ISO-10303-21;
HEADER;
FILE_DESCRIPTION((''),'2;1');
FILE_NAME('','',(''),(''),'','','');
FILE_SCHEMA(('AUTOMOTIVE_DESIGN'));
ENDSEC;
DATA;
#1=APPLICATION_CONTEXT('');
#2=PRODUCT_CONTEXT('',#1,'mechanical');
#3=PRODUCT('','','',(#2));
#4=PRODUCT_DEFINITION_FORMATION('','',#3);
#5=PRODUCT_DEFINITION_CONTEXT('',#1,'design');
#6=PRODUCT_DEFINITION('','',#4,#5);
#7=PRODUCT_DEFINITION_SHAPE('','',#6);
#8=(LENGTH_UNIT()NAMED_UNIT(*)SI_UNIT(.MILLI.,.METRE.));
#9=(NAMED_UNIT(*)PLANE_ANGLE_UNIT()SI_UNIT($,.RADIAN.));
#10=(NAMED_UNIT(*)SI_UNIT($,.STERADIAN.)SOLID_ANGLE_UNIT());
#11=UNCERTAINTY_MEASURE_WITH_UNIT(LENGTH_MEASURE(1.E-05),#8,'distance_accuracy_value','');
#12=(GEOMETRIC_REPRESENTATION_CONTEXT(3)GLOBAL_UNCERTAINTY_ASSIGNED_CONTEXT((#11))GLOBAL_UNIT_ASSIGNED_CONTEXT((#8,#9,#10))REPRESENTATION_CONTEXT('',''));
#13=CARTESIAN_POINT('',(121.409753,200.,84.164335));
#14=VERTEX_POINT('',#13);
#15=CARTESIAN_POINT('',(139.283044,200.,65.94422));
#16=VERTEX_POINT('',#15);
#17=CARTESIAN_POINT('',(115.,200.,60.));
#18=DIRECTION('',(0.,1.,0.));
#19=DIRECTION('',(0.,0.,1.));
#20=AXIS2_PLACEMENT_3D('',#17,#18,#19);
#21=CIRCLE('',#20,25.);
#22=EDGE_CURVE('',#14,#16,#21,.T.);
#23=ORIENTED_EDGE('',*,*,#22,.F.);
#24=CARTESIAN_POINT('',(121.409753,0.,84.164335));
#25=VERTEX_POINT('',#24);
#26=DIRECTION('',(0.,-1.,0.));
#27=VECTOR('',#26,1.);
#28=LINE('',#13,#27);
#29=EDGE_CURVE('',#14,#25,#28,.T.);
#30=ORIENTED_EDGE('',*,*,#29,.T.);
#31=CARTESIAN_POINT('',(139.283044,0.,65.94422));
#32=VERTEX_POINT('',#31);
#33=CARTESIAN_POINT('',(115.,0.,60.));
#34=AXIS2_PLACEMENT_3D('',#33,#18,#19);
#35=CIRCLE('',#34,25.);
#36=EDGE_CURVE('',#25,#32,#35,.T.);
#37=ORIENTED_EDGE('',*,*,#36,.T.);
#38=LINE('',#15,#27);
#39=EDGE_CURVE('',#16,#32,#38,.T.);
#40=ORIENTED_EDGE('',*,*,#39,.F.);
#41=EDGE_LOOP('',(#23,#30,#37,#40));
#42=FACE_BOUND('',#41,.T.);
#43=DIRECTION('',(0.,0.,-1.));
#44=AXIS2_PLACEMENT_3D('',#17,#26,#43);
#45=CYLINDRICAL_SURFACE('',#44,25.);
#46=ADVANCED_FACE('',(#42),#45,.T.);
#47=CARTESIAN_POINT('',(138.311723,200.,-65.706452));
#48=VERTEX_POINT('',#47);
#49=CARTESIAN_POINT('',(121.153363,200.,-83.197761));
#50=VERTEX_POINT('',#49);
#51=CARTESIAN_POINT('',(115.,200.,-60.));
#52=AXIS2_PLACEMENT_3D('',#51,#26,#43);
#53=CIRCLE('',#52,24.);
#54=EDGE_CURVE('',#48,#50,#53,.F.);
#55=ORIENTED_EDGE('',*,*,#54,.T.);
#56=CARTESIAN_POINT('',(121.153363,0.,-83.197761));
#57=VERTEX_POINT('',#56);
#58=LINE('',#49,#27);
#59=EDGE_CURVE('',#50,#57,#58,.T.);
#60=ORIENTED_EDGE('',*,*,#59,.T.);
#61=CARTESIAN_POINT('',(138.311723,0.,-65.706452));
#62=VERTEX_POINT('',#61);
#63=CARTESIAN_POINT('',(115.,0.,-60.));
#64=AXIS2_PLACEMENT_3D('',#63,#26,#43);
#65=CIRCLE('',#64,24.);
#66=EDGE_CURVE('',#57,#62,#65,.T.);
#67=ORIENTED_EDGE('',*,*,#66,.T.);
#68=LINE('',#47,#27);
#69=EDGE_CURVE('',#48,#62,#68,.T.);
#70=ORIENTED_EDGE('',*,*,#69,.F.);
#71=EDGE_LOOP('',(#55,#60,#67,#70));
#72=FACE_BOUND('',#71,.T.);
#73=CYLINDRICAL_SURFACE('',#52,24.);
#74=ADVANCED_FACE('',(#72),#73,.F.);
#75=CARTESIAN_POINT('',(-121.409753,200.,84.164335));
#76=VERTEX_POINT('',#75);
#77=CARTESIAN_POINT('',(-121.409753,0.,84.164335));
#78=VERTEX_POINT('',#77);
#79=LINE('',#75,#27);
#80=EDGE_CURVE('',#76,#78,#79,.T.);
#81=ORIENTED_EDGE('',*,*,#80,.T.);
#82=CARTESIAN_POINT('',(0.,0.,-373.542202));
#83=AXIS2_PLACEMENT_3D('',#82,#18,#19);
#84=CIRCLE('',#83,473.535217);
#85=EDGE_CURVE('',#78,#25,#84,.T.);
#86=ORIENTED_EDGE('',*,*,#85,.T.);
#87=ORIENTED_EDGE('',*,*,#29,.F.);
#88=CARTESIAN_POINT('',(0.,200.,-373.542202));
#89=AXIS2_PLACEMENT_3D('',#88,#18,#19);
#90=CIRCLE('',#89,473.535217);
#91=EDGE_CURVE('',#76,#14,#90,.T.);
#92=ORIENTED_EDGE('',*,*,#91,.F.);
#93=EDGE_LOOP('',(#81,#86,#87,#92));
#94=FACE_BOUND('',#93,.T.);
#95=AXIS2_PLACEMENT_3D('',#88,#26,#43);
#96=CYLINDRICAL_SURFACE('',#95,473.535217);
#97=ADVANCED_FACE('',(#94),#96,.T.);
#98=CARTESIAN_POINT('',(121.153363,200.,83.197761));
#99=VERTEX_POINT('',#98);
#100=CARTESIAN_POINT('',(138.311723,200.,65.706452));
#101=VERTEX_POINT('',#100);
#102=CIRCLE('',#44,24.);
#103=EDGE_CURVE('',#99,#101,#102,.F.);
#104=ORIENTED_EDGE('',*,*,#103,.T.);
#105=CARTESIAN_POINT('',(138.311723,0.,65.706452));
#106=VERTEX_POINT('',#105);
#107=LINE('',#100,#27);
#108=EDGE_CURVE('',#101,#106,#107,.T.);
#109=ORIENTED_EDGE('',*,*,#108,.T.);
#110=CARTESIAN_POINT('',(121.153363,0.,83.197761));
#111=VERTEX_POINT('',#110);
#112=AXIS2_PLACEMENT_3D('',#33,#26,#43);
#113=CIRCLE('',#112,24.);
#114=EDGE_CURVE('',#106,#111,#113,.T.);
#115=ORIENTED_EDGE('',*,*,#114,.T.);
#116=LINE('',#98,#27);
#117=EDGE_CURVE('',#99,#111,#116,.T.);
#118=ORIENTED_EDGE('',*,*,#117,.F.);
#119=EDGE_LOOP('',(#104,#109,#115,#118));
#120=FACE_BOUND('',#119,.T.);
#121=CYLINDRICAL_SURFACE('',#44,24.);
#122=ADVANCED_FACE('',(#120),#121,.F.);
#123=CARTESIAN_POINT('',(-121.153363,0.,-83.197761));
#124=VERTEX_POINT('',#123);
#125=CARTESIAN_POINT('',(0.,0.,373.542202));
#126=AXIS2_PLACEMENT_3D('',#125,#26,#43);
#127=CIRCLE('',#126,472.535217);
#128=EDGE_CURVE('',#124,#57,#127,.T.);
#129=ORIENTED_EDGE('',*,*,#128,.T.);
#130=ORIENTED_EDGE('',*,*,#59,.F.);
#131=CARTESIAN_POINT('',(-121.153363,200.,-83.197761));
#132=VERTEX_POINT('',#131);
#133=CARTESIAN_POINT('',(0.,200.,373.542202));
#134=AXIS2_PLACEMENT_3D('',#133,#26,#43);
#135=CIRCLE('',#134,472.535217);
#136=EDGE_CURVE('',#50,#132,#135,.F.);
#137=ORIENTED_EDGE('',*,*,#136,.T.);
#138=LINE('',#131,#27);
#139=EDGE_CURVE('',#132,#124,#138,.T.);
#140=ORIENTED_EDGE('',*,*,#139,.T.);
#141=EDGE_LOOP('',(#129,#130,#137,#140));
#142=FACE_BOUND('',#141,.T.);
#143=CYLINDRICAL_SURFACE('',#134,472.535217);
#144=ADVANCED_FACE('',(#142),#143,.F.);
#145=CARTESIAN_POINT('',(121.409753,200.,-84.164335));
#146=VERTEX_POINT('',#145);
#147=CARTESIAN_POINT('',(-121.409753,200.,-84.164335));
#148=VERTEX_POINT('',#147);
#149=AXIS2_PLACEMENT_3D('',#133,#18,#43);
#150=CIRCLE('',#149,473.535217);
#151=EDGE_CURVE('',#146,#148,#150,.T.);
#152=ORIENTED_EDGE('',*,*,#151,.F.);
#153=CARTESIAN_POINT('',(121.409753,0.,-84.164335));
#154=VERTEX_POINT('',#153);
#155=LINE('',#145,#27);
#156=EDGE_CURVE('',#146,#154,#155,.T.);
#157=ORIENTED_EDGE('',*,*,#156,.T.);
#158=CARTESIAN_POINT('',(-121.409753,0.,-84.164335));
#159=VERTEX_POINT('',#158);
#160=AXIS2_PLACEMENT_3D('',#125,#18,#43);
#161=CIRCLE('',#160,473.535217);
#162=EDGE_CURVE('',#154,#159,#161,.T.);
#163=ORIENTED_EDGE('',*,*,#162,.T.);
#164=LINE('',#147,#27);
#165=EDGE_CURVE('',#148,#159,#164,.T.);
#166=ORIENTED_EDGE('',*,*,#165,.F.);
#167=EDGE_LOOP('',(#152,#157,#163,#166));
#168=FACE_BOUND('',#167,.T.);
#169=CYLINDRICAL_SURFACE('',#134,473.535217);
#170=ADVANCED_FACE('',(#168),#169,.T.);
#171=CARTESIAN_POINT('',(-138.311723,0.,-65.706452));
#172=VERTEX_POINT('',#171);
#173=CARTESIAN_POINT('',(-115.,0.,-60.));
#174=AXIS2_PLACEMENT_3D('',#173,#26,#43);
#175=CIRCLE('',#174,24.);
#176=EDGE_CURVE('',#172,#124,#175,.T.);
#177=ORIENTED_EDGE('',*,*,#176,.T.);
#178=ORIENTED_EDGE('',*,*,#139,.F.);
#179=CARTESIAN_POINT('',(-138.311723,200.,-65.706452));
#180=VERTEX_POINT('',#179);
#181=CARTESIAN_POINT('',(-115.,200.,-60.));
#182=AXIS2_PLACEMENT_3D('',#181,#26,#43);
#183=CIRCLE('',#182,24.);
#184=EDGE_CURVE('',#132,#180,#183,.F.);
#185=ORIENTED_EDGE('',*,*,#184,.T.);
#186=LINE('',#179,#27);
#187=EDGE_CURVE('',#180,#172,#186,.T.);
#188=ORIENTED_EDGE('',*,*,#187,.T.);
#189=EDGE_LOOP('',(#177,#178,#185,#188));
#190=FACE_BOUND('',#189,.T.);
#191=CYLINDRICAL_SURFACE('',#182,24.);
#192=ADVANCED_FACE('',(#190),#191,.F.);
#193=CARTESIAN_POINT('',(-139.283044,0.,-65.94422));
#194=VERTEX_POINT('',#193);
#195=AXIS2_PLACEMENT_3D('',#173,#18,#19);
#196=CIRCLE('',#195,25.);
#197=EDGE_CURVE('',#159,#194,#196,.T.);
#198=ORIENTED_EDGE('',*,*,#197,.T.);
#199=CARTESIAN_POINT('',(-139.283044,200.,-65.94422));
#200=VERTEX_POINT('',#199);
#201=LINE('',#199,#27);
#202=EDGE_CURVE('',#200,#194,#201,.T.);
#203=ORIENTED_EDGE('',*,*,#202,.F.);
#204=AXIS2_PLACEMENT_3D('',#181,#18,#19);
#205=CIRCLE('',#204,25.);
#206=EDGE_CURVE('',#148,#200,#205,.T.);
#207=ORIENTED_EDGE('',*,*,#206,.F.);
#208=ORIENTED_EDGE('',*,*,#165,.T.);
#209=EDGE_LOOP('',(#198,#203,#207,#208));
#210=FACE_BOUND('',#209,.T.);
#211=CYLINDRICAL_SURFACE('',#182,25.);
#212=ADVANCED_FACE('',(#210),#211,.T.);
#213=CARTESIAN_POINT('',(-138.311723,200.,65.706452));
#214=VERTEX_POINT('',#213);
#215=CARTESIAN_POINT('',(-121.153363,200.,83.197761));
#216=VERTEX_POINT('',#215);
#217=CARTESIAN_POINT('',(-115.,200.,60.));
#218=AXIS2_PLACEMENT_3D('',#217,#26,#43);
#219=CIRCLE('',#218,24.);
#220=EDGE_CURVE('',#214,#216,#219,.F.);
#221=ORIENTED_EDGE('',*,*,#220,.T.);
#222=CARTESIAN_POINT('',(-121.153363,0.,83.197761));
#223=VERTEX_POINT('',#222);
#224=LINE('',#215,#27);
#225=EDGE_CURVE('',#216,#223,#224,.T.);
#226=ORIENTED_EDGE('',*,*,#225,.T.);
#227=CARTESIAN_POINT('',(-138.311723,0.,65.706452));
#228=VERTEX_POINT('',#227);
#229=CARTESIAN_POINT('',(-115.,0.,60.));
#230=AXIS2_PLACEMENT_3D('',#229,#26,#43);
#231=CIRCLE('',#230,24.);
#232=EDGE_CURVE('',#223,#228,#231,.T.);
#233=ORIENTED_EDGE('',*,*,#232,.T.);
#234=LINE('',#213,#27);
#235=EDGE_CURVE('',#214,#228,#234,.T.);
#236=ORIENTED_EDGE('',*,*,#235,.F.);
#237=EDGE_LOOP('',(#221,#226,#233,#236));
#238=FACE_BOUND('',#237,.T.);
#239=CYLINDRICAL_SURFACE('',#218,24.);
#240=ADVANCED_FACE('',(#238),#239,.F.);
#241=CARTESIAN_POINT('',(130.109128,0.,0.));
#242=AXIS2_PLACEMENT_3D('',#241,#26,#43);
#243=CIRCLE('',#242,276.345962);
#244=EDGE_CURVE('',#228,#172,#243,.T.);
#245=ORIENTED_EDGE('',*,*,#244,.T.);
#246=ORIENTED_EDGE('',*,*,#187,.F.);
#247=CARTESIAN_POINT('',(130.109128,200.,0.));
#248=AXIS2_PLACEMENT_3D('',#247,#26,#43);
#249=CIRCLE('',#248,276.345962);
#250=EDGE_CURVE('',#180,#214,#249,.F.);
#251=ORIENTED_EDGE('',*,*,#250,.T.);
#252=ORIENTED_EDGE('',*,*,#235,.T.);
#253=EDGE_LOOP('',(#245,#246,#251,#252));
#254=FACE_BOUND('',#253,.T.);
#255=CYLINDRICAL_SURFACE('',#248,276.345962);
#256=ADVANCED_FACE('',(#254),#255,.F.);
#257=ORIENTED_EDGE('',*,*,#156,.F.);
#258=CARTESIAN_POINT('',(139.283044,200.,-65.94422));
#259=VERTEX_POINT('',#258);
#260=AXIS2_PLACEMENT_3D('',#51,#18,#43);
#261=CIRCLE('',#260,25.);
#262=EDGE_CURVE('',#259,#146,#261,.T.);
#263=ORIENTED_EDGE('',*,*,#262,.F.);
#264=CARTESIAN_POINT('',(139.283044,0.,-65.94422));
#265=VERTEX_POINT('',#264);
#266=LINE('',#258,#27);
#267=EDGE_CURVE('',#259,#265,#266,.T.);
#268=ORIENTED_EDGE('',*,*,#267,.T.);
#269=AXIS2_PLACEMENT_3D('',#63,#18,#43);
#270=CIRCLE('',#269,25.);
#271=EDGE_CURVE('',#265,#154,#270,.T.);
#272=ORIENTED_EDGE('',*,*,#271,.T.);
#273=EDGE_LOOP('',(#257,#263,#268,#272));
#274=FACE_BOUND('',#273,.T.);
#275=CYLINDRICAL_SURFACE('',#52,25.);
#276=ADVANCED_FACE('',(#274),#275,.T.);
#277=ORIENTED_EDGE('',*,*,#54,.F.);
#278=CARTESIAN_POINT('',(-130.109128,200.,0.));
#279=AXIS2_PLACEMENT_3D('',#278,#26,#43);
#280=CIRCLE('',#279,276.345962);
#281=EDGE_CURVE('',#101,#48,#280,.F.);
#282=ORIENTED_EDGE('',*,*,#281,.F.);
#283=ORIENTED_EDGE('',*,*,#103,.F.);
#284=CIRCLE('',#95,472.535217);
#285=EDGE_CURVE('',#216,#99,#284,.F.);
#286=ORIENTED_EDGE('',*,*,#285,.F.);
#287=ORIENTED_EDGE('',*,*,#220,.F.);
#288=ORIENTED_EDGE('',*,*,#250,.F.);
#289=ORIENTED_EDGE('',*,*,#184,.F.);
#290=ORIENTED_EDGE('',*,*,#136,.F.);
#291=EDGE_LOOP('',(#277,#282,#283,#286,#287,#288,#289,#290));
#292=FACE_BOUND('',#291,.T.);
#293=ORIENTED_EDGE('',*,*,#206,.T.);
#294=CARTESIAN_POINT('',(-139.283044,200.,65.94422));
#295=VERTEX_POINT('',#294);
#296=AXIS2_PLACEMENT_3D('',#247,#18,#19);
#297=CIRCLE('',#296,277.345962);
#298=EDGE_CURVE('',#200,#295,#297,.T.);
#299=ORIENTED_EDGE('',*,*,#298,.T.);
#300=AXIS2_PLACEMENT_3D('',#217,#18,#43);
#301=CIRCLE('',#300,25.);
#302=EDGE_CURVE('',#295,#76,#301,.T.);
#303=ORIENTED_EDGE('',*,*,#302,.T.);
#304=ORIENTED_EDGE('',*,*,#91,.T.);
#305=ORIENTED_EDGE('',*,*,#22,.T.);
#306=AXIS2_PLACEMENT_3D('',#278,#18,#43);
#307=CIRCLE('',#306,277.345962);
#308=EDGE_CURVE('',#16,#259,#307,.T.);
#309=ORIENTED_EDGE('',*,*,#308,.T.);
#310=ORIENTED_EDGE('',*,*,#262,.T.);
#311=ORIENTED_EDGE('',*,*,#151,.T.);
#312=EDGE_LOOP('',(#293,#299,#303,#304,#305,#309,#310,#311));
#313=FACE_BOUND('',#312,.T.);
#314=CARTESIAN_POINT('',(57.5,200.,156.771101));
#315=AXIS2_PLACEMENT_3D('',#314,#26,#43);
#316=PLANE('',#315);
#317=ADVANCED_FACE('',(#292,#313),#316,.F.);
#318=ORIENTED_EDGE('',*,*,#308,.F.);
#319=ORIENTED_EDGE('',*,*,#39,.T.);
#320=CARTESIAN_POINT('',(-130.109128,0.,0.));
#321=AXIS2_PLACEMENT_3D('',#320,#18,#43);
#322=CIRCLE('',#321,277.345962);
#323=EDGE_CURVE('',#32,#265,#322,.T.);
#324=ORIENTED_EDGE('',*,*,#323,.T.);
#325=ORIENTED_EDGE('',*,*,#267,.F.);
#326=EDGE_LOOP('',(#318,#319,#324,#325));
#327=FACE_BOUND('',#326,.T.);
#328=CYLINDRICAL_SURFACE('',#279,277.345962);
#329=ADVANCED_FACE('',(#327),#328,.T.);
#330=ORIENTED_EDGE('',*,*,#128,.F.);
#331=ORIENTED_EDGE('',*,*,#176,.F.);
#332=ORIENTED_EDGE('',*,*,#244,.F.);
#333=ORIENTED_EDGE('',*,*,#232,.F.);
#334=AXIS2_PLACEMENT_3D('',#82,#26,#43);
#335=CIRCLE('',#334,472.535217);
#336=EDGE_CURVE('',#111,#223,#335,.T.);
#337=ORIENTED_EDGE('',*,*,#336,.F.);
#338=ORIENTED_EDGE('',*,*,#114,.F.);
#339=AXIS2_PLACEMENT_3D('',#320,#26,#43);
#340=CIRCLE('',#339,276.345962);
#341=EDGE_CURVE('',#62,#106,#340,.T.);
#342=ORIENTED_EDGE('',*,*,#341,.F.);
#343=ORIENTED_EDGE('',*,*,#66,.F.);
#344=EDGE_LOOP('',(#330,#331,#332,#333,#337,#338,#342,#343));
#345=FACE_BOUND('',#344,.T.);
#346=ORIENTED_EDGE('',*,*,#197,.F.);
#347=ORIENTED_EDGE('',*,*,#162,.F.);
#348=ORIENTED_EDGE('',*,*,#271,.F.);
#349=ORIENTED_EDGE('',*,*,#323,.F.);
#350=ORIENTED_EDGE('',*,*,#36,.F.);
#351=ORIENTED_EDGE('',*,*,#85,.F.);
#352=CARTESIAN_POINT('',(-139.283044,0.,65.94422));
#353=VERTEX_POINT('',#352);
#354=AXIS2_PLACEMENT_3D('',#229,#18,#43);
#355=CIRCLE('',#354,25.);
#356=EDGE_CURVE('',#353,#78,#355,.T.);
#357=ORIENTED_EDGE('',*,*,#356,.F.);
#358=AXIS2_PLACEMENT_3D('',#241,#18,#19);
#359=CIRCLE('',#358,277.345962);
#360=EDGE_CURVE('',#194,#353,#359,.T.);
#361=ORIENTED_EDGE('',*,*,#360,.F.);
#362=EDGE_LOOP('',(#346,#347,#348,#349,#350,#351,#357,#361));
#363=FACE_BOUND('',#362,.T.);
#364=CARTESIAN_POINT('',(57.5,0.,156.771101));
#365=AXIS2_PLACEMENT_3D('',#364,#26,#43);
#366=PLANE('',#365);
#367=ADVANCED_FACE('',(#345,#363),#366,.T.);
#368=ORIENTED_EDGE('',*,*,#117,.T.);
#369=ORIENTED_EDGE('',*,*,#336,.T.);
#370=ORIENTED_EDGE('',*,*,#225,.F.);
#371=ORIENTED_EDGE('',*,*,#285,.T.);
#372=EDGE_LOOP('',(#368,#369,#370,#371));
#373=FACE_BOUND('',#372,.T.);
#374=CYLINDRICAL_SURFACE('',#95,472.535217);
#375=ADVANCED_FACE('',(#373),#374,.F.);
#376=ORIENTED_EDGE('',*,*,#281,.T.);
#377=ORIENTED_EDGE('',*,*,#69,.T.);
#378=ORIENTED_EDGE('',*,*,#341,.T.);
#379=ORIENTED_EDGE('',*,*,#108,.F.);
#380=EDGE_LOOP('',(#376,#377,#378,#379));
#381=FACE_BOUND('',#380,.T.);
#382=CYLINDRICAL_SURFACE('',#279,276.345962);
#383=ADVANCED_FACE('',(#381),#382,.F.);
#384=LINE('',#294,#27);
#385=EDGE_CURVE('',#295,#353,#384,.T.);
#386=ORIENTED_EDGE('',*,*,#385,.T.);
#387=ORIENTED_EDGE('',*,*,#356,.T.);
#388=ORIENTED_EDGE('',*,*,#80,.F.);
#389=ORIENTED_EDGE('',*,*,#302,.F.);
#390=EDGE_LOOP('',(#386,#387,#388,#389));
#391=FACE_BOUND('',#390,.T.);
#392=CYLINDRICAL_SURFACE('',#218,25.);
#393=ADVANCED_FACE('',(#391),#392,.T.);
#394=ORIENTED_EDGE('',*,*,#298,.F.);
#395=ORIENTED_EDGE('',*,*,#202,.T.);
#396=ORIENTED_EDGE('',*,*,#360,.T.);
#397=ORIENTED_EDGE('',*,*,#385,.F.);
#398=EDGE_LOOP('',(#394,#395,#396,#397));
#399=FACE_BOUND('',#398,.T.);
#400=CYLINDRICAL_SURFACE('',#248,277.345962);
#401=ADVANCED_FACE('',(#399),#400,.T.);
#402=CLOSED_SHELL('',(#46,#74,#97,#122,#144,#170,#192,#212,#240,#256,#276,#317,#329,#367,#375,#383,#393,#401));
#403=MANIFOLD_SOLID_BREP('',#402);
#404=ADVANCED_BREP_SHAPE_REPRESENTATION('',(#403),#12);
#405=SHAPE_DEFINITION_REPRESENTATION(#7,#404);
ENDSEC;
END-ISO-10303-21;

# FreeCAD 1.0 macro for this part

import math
import FreeCAD as App
import Part
import Sketcher


def faces_at(feature, points):
    """Names of the faces that lie closest to the given points."""
    faces = feature.Shape.Faces
    near = lambda p: min(range(len(faces)), key=lambda i: faces[i].distToShape(Part.Vertex(*p))[0])
    return sorted({f"Face{near(p) + 1}" for p in points})

doc = App.newDocument("Part")
params = doc.addObject("Spreadsheet::Sheet", "Params")
for row, (alias, value) in enumerate([
    ("sketch1_radius", "25 mm"),
    ("pad1_length", "200 mm"),
    ("thickness_wall", "1 mm"),
    ("sketch2_radius", "24 mm"),
    ("pocket1_length", "200 mm"),
], start=1):
    params.set(f"A{row}", alias)
    params.set(f"B{row}", "=" + value)
    params.setAlias(f"B{row}", alias)

body = doc.addObject("PartDesign::Body", "Body")

# Sketch on XZ plane
sketch1 = body.newObject("Sketcher::SketchObject", "Sketch")
sketch1.AttachmentSupport = (doc.getObject("XZ_Plane"), [""])
sketch1.MapMode = "FlatFace"
sketch1.addGeometry(Part.ArcOfCircle(Part.Circle(App.Vector(-115, -60, 0), App.Vector(0, 0, 1), 25), math.radians(-166), math.radians(-105)), False)
sketch1.addGeometry(Part.ArcOfCircle(Part.Circle(App.Vector(130, 0, 0), App.Vector(0, 0, 1), 277), math.radians(166), math.radians(194)), False)
sketch1.addGeometry(Part.ArcOfCircle(Part.Circle(App.Vector(-115, 60, 0), App.Vector(0, 0, 1), 25), math.radians(105), math.radians(166)), False)
sketch1.addGeometry(Part.ArcOfCircle(Part.Circle(App.Vector(0, -374, 0), App.Vector(0, 0, 1), 474), math.radians(75), math.radians(105)), False)
sketch1.addGeometry(Part.ArcOfCircle(Part.Circle(App.Vector(115, 60, 0), App.Vector(0, 0, 1), 25), math.radians(14), math.radians(75)), False)
sketch1.addGeometry(Part.ArcOfCircle(Part.Circle(App.Vector(-130, 0, 0), App.Vector(0, 0, 1), 277), math.radians(-14), math.radians(14)), False)
sketch1.addGeometry(Part.ArcOfCircle(Part.Circle(App.Vector(115, -60, 0), App.Vector(0, 0, 1), 25), math.radians(-75), math.radians(-14)), False)
sketch1.addGeometry(Part.ArcOfCircle(Part.Circle(App.Vector(0, 374, 0), App.Vector(0, 0, 1), 474), math.radians(-105), math.radians(-75)), False)
sketch1.addConstraint(Sketcher.Constraint("Tangent", 0, 1, 1, 2))
sketch1.addConstraint(Sketcher.Constraint("Tangent", 1, 1, 2, 2))
sketch1.addConstraint(Sketcher.Constraint("Tangent", 2, 1, 3, 2))
sketch1.addConstraint(Sketcher.Constraint("Tangent", 3, 1, 4, 2))
sketch1.addConstraint(Sketcher.Constraint("Tangent", 4, 1, 5, 2))
sketch1.addConstraint(Sketcher.Constraint("Tangent", 5, 1, 6, 2))
sketch1.addConstraint(Sketcher.Constraint("Tangent", 6, 1, 7, 2))
sketch1.addConstraint(Sketcher.Constraint("Tangent", 7, 1, 0, 2))
sketch1.addConstraint(Sketcher.Constraint("Equal", 0, 2))
sketch1.addConstraint(Sketcher.Constraint("Equal", 2, 4))
sketch1.addConstraint(Sketcher.Constraint("Equal", 1, 5))
sketch1.addConstraint(Sketcher.Constraint("Equal", 4, 6))
sketch1.addConstraint(Sketcher.Constraint("Equal", 3, 7))
sketch1.addConstraint(Sketcher.Constraint("Symmetric", 0, 3, 4, 3, -1, 1))
sketch1.addConstraint(Sketcher.Constraint("Symmetric", 2, 3, 6, 3, -1, 1))
sketch1.addConstraint(Sketcher.Constraint("Symmetric", 2, 3, 4, 3, -2))
sketch1.addConstraint(Sketcher.Constraint("Radius", 0, 25.0))
sketch1.addConstraint(Sketcher.Constraint("DistanceX", 0, 3, -1, 1, 115.0))
sketch1.addConstraint(Sketcher.Constraint("DistanceY", 0, 3, -1, 1, 60.0))
sketch1.addConstraint(Sketcher.Constraint("Radius", 1, 277.345962))
sketch1.addConstraint(Sketcher.Constraint("Radius", 3, 473.535217))
sketch1.setExpression("Constraints[16]", "Params.sketch1_radius")
pad1 = body.newObject("PartDesign::Pad", "Pad")
pad1.Profile = sketch1
pad1.setExpression("Length", "Params.pad1_length")
pad1.Reversed = True
doc.recompute()

thickness = body.newObject("PartDesign::Thickness", "Thickness")
thickness.Base = (pad1, faces_at(pad1, [(0, 200, 0)]))
thickness.setExpression("Value", "Params.thickness_wall")
thickness.Reversed = True
thickness.Join = "Intersection"

# Sketch on XZ plane
sketch2 = body.newObject("Sketcher::SketchObject", "Sketch001")
sketch2.AttachmentSupport = (doc.getObject("XZ_Plane"), [""])
sketch2.MapMode = "FlatFace"
sketch2.addGeometry(Part.ArcOfCircle(Part.Circle(App.Vector(0, 374, 0), App.Vector(0, 0, 1), 473), math.radians(-105), math.radians(-75)), False)
sketch2.addGeometry(Part.ArcOfCircle(Part.Circle(App.Vector(115, -60, 0), App.Vector(0, 0, 1), 24), math.radians(-75), math.radians(-14)), False)
sketch2.addGeometry(Part.ArcOfCircle(Part.Circle(App.Vector(-130, 0, 0), App.Vector(0, 0, 1), 276), math.radians(-14), math.radians(14)), False)
sketch2.addGeometry(Part.ArcOfCircle(Part.Circle(App.Vector(115, 60, 0), App.Vector(0, 0, 1), 24), math.radians(14), math.radians(75)), False)
sketch2.addGeometry(Part.ArcOfCircle(Part.Circle(App.Vector(0, -374, 0), App.Vector(0, 0, 1), 473), math.radians(75), math.radians(105)), False)
sketch2.addGeometry(Part.ArcOfCircle(Part.Circle(App.Vector(-115, 60, 0), App.Vector(0, 0, 1), 24), math.radians(105), math.radians(166)), False)
sketch2.addGeometry(Part.ArcOfCircle(Part.Circle(App.Vector(130, 0, 0), App.Vector(0, 0, 1), 276), math.radians(166), math.radians(194)), False)
sketch2.addGeometry(Part.ArcOfCircle(Part.Circle(App.Vector(-115, -60, 0), App.Vector(0, 0, 1), 24), math.radians(-166), math.radians(-105)), False)
sketch2.addConstraint(Sketcher.Constraint("Tangent", 0, 2, 1, 1))
sketch2.addConstraint(Sketcher.Constraint("Tangent", 1, 2, 2, 1))
sketch2.addConstraint(Sketcher.Constraint("Tangent", 2, 2, 3, 1))
sketch2.addConstraint(Sketcher.Constraint("Tangent", 3, 2, 4, 1))
sketch2.addConstraint(Sketcher.Constraint("Tangent", 4, 2, 5, 1))
sketch2.addConstraint(Sketcher.Constraint("Tangent", 5, 2, 6, 1))
sketch2.addConstraint(Sketcher.Constraint("Tangent", 6, 2, 7, 1))
sketch2.addConstraint(Sketcher.Constraint("Tangent", 7, 2, 0, 1))
sketch2.addConstraint(Sketcher.Constraint("Equal", 1, 3))
sketch2.addConstraint(Sketcher.Constraint("Equal", 0, 4))
sketch2.addConstraint(Sketcher.Constraint("Equal", 3, 5))
sketch2.addConstraint(Sketcher.Constraint("Equal", 2, 6))
sketch2.addConstraint(Sketcher.Constraint("Equal", 5, 7))
sketch2.addConstraint(Sketcher.Constraint("Symmetric", 0, 3, 4, 3, -1, 1))
sketch2.addConstraint(Sketcher.Constraint("Symmetric", 2, 3, 6, 3, -1, 1))
sketch2.addConstraint(Sketcher.Constraint("Symmetric", 3, 3, 5, 3, -2))
sketch2.addConstraint(Sketcher.Constraint("Radius", 1, 24.0))
sketch2.addConstraint(Sketcher.Constraint("DistanceX", -1, 1, 1, 3, 115.0))
sketch2.addConstraint(Sketcher.Constraint("DistanceY", 1, 3, -1, 1, 60.0))
sketch2.addConstraint(Sketcher.Constraint("Radius", 0, 472.535217))
sketch2.addConstraint(Sketcher.Constraint("Radius", 2, 276.345962))
sketch2.setExpression("Constraints[16]", "Params.sketch2_radius")
pocket1 = body.newObject("PartDesign::Pocket", "Pocket")
pocket1.Profile = sketch2
pocket1.setExpression("Length", "Params.pocket1_length")

doc.recompute()
